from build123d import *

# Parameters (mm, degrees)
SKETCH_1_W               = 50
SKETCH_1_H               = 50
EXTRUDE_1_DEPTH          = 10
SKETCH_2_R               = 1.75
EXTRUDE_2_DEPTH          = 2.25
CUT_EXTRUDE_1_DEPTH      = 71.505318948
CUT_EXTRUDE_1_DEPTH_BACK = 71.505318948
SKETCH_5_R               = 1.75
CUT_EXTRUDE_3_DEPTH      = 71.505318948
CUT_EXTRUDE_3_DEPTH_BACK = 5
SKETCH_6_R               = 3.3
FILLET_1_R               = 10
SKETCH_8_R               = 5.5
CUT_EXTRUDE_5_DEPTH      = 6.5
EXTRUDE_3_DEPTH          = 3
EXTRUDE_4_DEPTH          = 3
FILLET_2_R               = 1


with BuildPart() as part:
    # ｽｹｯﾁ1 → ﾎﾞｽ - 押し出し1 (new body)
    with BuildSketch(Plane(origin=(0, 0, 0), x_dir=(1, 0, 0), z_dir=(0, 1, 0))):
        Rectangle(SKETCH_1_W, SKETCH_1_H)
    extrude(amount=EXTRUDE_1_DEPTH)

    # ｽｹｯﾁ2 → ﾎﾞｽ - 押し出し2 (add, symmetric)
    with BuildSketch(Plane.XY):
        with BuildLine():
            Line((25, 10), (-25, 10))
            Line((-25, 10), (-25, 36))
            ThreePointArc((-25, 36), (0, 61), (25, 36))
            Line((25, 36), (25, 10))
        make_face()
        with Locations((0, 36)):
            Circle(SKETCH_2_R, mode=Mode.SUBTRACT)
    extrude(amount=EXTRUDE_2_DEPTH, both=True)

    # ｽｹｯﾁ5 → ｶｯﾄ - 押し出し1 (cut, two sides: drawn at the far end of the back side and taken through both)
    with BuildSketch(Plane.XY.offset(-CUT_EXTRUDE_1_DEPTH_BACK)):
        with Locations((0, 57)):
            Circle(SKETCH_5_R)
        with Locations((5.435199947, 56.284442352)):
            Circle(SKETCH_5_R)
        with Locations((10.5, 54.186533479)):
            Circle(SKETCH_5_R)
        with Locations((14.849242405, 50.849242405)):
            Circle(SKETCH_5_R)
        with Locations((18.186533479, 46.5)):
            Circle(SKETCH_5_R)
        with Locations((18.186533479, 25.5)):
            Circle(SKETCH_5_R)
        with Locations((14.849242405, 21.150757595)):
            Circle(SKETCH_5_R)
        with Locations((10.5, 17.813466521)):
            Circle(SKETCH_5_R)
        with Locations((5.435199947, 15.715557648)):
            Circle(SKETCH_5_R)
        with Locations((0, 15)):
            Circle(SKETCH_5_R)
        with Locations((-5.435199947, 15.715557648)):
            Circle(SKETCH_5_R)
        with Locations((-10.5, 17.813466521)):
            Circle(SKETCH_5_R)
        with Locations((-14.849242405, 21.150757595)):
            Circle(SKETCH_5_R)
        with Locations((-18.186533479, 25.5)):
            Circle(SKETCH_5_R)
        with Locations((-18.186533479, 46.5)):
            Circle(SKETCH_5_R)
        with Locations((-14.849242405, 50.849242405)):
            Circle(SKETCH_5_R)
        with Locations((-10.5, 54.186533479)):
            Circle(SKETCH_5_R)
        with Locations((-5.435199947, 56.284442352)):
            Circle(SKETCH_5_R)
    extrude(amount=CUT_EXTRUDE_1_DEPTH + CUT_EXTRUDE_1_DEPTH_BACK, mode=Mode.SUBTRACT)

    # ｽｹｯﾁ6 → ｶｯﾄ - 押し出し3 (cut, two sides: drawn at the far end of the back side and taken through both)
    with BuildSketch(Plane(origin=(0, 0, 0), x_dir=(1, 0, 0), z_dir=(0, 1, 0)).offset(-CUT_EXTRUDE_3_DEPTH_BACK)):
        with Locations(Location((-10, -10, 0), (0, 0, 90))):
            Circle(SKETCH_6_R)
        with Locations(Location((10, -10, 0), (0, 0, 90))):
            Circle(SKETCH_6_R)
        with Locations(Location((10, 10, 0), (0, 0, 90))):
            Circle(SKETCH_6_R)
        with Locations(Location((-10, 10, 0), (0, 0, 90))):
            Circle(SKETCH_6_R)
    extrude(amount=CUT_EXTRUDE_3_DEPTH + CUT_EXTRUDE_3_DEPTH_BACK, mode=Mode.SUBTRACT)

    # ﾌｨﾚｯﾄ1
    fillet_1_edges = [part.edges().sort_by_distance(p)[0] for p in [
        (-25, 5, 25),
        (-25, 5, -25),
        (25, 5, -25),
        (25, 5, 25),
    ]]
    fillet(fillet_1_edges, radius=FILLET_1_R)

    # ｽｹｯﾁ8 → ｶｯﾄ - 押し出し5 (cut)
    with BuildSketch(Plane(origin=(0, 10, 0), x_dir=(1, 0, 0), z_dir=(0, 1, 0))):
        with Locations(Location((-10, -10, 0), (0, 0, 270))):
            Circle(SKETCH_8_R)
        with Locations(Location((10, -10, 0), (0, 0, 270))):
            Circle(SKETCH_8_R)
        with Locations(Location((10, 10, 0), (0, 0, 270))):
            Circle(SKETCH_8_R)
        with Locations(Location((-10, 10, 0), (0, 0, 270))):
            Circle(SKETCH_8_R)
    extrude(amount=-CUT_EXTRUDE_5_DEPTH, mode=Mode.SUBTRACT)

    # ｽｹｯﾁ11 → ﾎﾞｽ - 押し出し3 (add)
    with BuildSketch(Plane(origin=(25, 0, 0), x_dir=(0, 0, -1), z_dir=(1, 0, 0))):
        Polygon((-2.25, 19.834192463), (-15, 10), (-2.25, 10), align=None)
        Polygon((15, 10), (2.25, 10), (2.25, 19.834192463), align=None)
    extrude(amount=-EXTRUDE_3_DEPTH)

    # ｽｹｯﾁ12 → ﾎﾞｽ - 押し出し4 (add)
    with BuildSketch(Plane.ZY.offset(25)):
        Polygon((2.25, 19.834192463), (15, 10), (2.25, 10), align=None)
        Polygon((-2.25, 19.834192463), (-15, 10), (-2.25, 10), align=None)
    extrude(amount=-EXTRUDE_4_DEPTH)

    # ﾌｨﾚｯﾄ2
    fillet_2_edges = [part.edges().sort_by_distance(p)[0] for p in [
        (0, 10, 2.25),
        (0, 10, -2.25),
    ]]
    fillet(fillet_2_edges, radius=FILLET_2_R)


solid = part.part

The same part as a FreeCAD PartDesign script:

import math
import FreeCAD as App
import Part
import Sketcher

V = App.Vector
Q = App.Units.Quantity


def edges_at(feature, points):
    """Names of the edges that pass closest to the given points."""
    edges = feature.Shape.Edges
    near = lambda p: min(range(len(edges)), key=lambda i: edges[i].distToShape(Part.Vertex(*p))[0])
    return sorted({f"Edge{near(p) + 1}" for p in points})

doc = App.newDocument("Part")
params = doc.addObject("Spreadsheet::Sheet", "Params")
for row, (alias, value) in enumerate([
    ("sketch1_width", "50 mm"),
    ("pad1_length", "10 mm"),
    ("sketch2_radius", "25 mm"),
    ("sketch2_diameter", "3.5 mm"),
    ("sketch2_height", "26 mm"),
    ("pad2_length", "4.5 mm"),
    ("sketch3_diameter", "3.5 mm"),
    ("sketch4_diameter", "6.6 mm"),
    ("fillet_radius", "10 mm"),
    ("sketch5_diameter", "11 mm"),
    ("pocket3_length", "6.5 mm"),
    ("sketch6_height", "12.75 mm"),
    ("pad3_length", "3 mm"),
    ("sketch7_height", "12.75 mm"),
    ("pad4_length", "3 mm"),
    ("fillet2_radius", "1 mm"),
], start=1):
    params.set(f"A{row}", alias)
    params.set(f"B{row}", "=" + value)
    params.setAlias(f"B{row}", alias)

body = doc.addObject("PartDesign::Body", "Body")

# Sketch on XZ plane
sketch1 = doc.addObject("Sketcher::SketchObject", "Sketch")
body.addObject(sketch1)
sketch1.AttachmentSupport = (doc.XZ_Plane, [""])
sketch1.MapMode = "FlatFace"
sketch1.addGeometry([
    Part.LineSegment(V(-25, -25, 0), V(-25, 25, 0)),
    Part.LineSegment(V(-25, 25, 0), V(25, 25, 0)),
    Part.LineSegment(V(25, 25, 0), V(25, -25, 0)),
    Part.LineSegment(V(25, -25, 0), V(-25, -25, 0)),
], False)
sketch1.addConstraint([
    Sketcher.Constraint("Coincident", 0, 2, 1, 1),
    Sketcher.Constraint("Coincident", 1, 2, 2, 1),
    Sketcher.Constraint("Coincident", 2, 2, 3, 1),
    Sketcher.Constraint("Coincident", 3, 2, 0, 1),
    Sketcher.Constraint("Vertical", 0),
    Sketcher.Constraint("Horizontal", 1),
    Sketcher.Constraint("Vertical", 2),
    Sketcher.Constraint("Horizontal", 3),
    Sketcher.Constraint("Symmetric", 0, 2, 2, 2, -1, 1),
    Sketcher.Constraint("Equal", 3, 0),
    Sketcher.Constraint("DistanceX", 1, 1, 1, 2, Q("50 mm")),
])
sketch1.setExpression("Constraints[10]", "Params.sketch1_width")
pad1 = doc.addObject("PartDesign::Pad", "Pad")
body.addObject(pad1)
pad1.Profile = sketch1
pad1.setExpression("Length", "Params.pad1_length")
pad1.Reversed = True

# Sketch on XY plane
sketch2 = doc.addObject("Sketcher::SketchObject", "Sketch001")
body.addObject(sketch2)
sketch2.AttachmentSupport = (doc.XY_Plane, [""])
sketch2.MapMode = "FlatFace"
sketch2.addGeometry([
    Part.LineSegment(V(-25, 10, 0), V(25, 10, 0)),  # 0
    Part.LineSegment(V(25, 10, 0), V(25, 36, 0)),  # 1
    Part.ArcOfCircle(Part.Circle(V(0, 36, 0), V(0, 0, 1), 25), math.radians(0), math.radians(180)),  # 2
    Part.LineSegment(V(-25, 36, 0), V(-25, 10, 0)),  # 3
    Part.Circle(V(0, 36, 0), V(0, 0, 1), 1.75),  # 4
], False)
sketch2.addConstraint([
    Sketcher.Constraint("Coincident", 0, 2, 1, 1),
    Sketcher.Constraint("Tangent", 1, 2, 2, 1),
    Sketcher.Constraint("Tangent", 2, 2, 3, 1),
    Sketcher.Constraint("Coincident", 3, 2, 0, 1),
    Sketcher.Constraint("Horizontal", 0),
    Sketcher.Constraint("Vertical", 1),
    Sketcher.Constraint("Vertical", 3),
    Sketcher.Constraint("Coincident", 4, 3, 2, 3),
    Sketcher.Constraint("PointOnObject", 2, 3, -2),
    Sketcher.Constraint("Radius", 2, Q("25 mm")),
    Sketcher.Constraint("Diameter", 4, Q("3.5 mm")),
    Sketcher.Constraint("DistanceY", 1, 1, 1, 2, Q("26 mm")),
    Sketcher.Constraint("DistanceY", -1, 1, 2, 3, Q("36 mm")),
])
sketch2.setExpression("Constraints[9]", "Params.sketch2_radius")
sketch2.setExpression("Constraints[10]", "Params.sketch2_diameter")
sketch2.setExpression("Constraints[11]", "Params.sketch2_height")
pad2 = doc.addObject("PartDesign::Pad", "Pad001")
body.addObject(pad2)
pad2.Profile = sketch2
pad2.setExpression("Length", "Params.pad2_length")
pad2.Midplane = True

# Sketch on XY plane
sketch3 = doc.addObject("Sketcher::SketchObject", "Sketch002")
body.addObject(sketch3)
sketch3.AttachmentSupport = (doc.XY_Plane, [""])
sketch3.MapMode = "FlatFace"
sketch3.addGeometry([
    Part.Circle(V(0, 57, 0), V(0, 0, 1), 1.75),  # 0
    Part.Circle(V(5.4352, 56.284442, 0), V(0, 0, 1), 1.75),  # 1
    Part.Circle(V(10.5, 54.186533, 0), V(0, 0, 1), 1.75),  # 2
    Part.Circle(V(14.849242, 50.849242, 0), V(0, 0, 1), 1.75),  # 3
    Part.Circle(V(18.186533, 46.5, 0), V(0, 0, 1), 1.75),  # 4
    Part.Circle(V(18.186533, 25.5, 0), V(0, 0, 1), 1.75),  # 5
    Part.Circle(V(14.849242, 21.150758, 0), V(0, 0, 1), 1.75),  # 6
    Part.Circle(V(10.5, 17.813467, 0), V(0, 0, 1), 1.75),  # 7
    Part.Circle(V(5.4352, 15.715558, 0), V(0, 0, 1), 1.75),  # 8
    Part.Circle(V(0, 15, 0), V(0, 0, 1), 1.75),  # 9
    Part.Circle(V(-5.4352, 15.715558, 0), V(0, 0, 1), 1.75),  # 10
    Part.Circle(V(-10.5, 17.813467, 0), V(0, 0, 1), 1.75),  # 11
    Part.Circle(V(-14.849242, 21.150758, 0), V(0, 0, 1), 1.75),  # 12
    Part.Circle(V(-18.186533, 25.5, 0), V(0, 0, 1), 1.75),  # 13
    Part.Circle(V(-18.186533, 46.5, 0), V(0, 0, 1), 1.75),  # 14
    Part.Circle(V(-14.849242, 50.849242, 0), V(0, 0, 1), 1.75),  # 15
    Part.Circle(V(-10.5, 54.186533, 0), V(0, 0, 1), 1.75),  # 16
    Part.Circle(V(-5.4352, 56.284442, 0), V(0, 0, 1), 1.75),  # 17
], False)
sketch3.addConstraint([
    Sketcher.Constraint("Equal", 0, 1),
    Sketcher.Constraint("Equal", 1, 2),
    Sketcher.Constraint("Equal", 2, 3),
    Sketcher.Constraint("Equal", 3, 4),
    Sketcher.Constraint("Equal", 4, 5),
    Sketcher.Constraint("Equal", 5, 6),
    Sketcher.Constraint("Equal", 6, 7),
    Sketcher.Constraint("Equal", 7, 8),
    Sketcher.Constraint("Equal", 8, 9),
    Sketcher.Constraint("Equal", 9, 10),
    Sketcher.Constraint("Equal", 10, 11),
    Sketcher.Constraint("Equal", 11, 12),
    Sketcher.Constraint("Equal", 12, 13),
    Sketcher.Constraint("Equal", 13, 14),
    Sketcher.Constraint("Equal", 14, 15),
    Sketcher.Constraint("Equal", 15, 16),
    Sketcher.Constraint("Equal", 16, 17),
    Sketcher.Constraint("Symmetric", 8, 3, 10, 3, -2),
    Sketcher.Constraint("Symmetric", 7, 3, 11, 3, -2),
    Sketcher.Constraint("Symmetric", 6, 3, 12, 3, -2),
    Sketcher.Constraint("Symmetric", 5, 3, 13, 3, -2),
    Sketcher.Constraint("Symmetric", 4, 3, 14, 3, -2),
    Sketcher.Constraint("Symmetric", 3, 3, 15, 3, -2),
    Sketcher.Constraint("Symmetric", 2, 3, 16, 3, -2),
    Sketcher.Constraint("Symmetric", 1, 3, 17, 3, -2),
    Sketcher.Constraint("PointOnObject", 0, 3, -2),
    Sketcher.Constraint("PointOnObject", 9, 3, -2),
    Sketcher.Constraint("Vertical", 4, 3, 5, 3),
    Sketcher.Constraint("Vertical", 3, 3, 6, 3),
    Sketcher.Constraint("Vertical", 2, 3, 7, 3),
    Sketcher.Constraint("Vertical", 1, 3, 8, 3),
    Sketcher.Constraint("Diameter", 0, Q("3.5 mm")),
    Sketcher.Constraint("DistanceY", -1, 1, 0, 3, Q("57 mm")),
    Sketcher.Constraint("DistanceY", -1, 1, 9, 3, Q("15 mm")),
    Sketcher.Constraint("DistanceY", 5, 3, 4, 3, Q("21 mm")),
    Sketcher.Constraint("DistanceX", 11, 3, 7, 3, Q("21 mm")),
    Sketcher.Constraint("DistanceY", -1, 1, 4, 3, Q("46.5 mm")),
    Sketcher.Constraint("DistanceX", -1, 1, 1, 3, Q("5.4352 mm")),
    Sketcher.Constraint("DistanceY", 3, 3, 1, 3, Q("5.4352 mm")),
    Sketcher.Constraint("DistanceY", 8, 3, 6, 3, Q("5.4352 mm")),
    Sketcher.Constraint("DistanceY", 2, 3, 1, 3, Q("2.097909 mm")),
    Sketcher.Constraint("DistanceX", 3, 3, 4, 3, Q("3.337291 mm")),
    Sketcher.Constraint("DistanceY", 7, 3, 6, 3, Q("3.337291 mm")),
    Sketcher.Constraint("DistanceY", -1, 1, 1, 3, Q("56.284442 mm")),
    Sketcher.Constraint("DistanceX", -1, 1, 3, 3, Q("14.849242 mm")),
    Sketcher.Constraint("DistanceY", -1, 1, 6, 3, Q("21.150758 mm")),
])
sketch3.setExpression("Constraints[31]", "Params.sketch3_diameter")
pocket1 = doc.addObject("PartDesign::Pocket", "Pocket")
body.addObject(pocket1)
pocket1.Profile = sketch3
pocket1.Type = "ThroughAll"
pocket1.Midplane = True

# Sketch on XZ plane
sketch4 = doc.addObject("Sketcher::SketchObject", "Sketch003")
body.addObject(sketch4)
sketch4.AttachmentSupport = (doc.XZ_Plane, [""])
sketch4.MapMode = "FlatFace"
sketch4.addGeometry([
    Part.Circle(V(-10, 10, 0), V(0, 0, 1), 3.3),
    Part.Circle(V(10, 10, 0), V(0, 0, 1), 3.3),
    Part.Circle(V(10, -10, 0), V(0, 0, 1), 3.3),
    Part.Circle(V(-10, -10, 0), V(0, 0, 1), 3.3),
], False)
sketch4.addConstraint([
    Sketcher.Constraint("Equal", 0, 1),
    Sketcher.Constraint("Equal", 1, 2),
    Sketcher.Constraint("Equal", 2, 3),
    Sketcher.Constraint("Symmetric", 0, 3, 2, 3, -1, 1),
    Sketcher.Constraint("Symmetric", 1, 3, 3, 3, -1, 1),
    Sketcher.Constraint("Symmetric", 0, 3, 1, 3, -2),
    Sketcher.Constraint("Diameter", 0, Q("6.6 mm")),
    Sketcher.Constraint("DistanceX", 0, 3, -1, 1, Q("10 mm")),
    Sketcher.Constraint("DistanceY", -1, 1, 0, 3, Q("10 mm")),
])
sketch4.setExpression("Constraints[6]", "Params.sketch4_diameter")
pocket2 = doc.addObject("PartDesign::Pocket", "Pocket001")
body.addObject(pocket2)
pocket2.Profile = sketch4
pocket2.Type = "ThroughAll"
pocket2.Midplane = True
doc.recompute()

fillet = doc.addObject("PartDesign::Fillet", "Fillet")
body.addObject(fillet)
fillet.Base = (pocket2, edges_at(pocket2, [
    (-25, 5, 25),
    (-25, 5, -25),
    (25, 5, -25),
    (25, 5, 25),
]))
fillet.setExpression("Radius", "Params.fillet_radius")

# Sketch on XZ plane
sketch5 = doc.addObject("Sketcher::SketchObject", "Sketch004")
body.addObject(sketch5)
sketch5.AttachmentSupport = (doc.XZ_Plane, [""])
sketch5.MapMode = "FlatFace"
sketch5.AttachmentOffset = App.Placement(V(0, 0, -10), App.Rotation())
sketch5.addGeometry([
    Part.Circle(V(-10, 10, 0), V(0, 0, 1), 5.5),
    Part.Circle(V(10, 10, 0), V(0, 0, 1), 5.5),
    Part.Circle(V(10, -10, 0), V(0, 0, 1), 5.5),
    Part.Circle(V(-10, -10, 0), V(0, 0, 1), 5.5),
], False)
sketch5.addConstraint([
    Sketcher.Constraint("Equal", 0, 1),
    Sketcher.Constraint("Equal", 1, 2),
    Sketcher.Constraint("Equal", 2, 3),
    Sketcher.Constraint("Symmetric", 0, 3, 2, 3, -1, 1),
    Sketcher.Constraint("Symmetric", 1, 3, 3, 3, -1, 1),
    Sketcher.Constraint("Symmetric", 0, 3, 1, 3, -2),
    Sketcher.Constraint("Diameter", 0, Q("11 mm")),
    Sketcher.Constraint("DistanceX", 0, 3, -1, 1, Q("10 mm")),
    Sketcher.Constraint("DistanceY", -1, 1, 0, 3, Q("10 mm")),
])
sketch5.setExpression("Constraints[6]", "Params.sketch5_diameter")
pocket3 = doc.addObject("PartDesign::Pocket", "Pocket002")
body.addObject(pocket3)
pocket3.Profile = sketch5
pocket3.setExpression("Length", "Params.pocket3_length")
pocket3.Reversed = True

# Sketch on YZ plane
sketch6 = doc.addObject("Sketcher::SketchObject", "Sketch005")
body.addObject(sketch6)
sketch6.AttachmentSupport = (doc.YZ_Plane, [""])
sketch6.MapMode = "FlatFace"
sketch6.AttachmentOffset = App.Placement(V(0, 0, 25), App.Rotation())
sketch6.addGeometry([
    Part.LineSegment(V(19.834192, 2.25, 0), V(10, 15, 0)),  # 0
    Part.LineSegment(V(10, 15, 0), V(10, 2.25, 0)),  # 1
    Part.LineSegment(V(10, 2.25, 0), V(19.834192, 2.25, 0)),  # 2
    Part.LineSegment(V(10, -2.25, 0), V(10, -15, 0)),  # 3
    Part.LineSegment(V(10, -15, 0), V(19.834192, -2.25, 0)),  # 4
    Part.LineSegment(V(19.834192, -2.25, 0), V(10, -2.25, 0)),  # 5
], False)
sketch6.addConstraint([
    Sketcher.Constraint("Coincident", 0, 2, 1, 1),
    Sketcher.Constraint("Coincident", 1, 2, 2, 1),
    Sketcher.Constraint("Coincident", 2, 2, 0, 1),
    Sketcher.Constraint("Coincident", 3, 2, 4, 1),
    Sketcher.Constraint("Coincident", 4, 2, 5, 1),
    Sketcher.Constraint("Coincident", 5, 2, 3, 1),
    Sketcher.Constraint("Vertical", 1),
    Sketcher.Constraint("Horizontal", 2),
    Sketcher.Constraint("Vertical", 3),
    Sketcher.Constraint("Horizontal", 5),
    Sketcher.Constraint("Symmetric", 0, 2, 3, 2, -1),
    Sketcher.Constraint("Symmetric", 2, 2, 4, 2, -1),
    Sketcher.Constraint("DistanceX", -1, 1, 0, 2, Q("10 mm")),
    Sketcher.Constraint("DistanceY", -1, 1, 0, 2, Q("15 mm")),
    Sketcher.Constraint("DistanceY", 1, 2, 1, 1, Q("12.75 mm")),
    Sketcher.Constraint("DistanceX", 2, 1, 2, 2, Q("9.834192 mm")),
])
sketch6.setExpression("Constraints[14]", "Params.sketch6_height")
pad3 = doc.addObject("PartDesign::Pad", "Pad002")
body.addObject(pad3)
pad3.Profile = sketch6
pad3.setExpression("Length", "Params.pad3_length")
pad3.Reversed = True

# Sketch on YZ plane
sketch7 = doc.addObject("Sketcher::SketchObject", "Sketch006")
body.addObject(sketch7)
sketch7.AttachmentSupport = (doc.YZ_Plane, [""])
sketch7.MapMode = "FlatFace"
sketch7.AttachmentOffset = App.Placement(V(0, 0, -25), App.Rotation())
sketch7.addGeometry([
    Part.LineSegment(V(10, 15, 0), V(19.834192, 2.25, 0)),  # 0
    Part.LineSegment(V(19.834192, 2.25, 0), V(10, 2.25, 0)),  # 1
    Part.LineSegment(V(10, 2.25, 0), V(10, 15, 0)),  # 2
    Part.LineSegment(V(19.834192, -2.25, 0), V(10, -15, 0)),  # 3
    Part.LineSegment(V(10, -15, 0), V(10, -2.25, 0)),  # 4
    Part.LineSegment(V(10, -2.25, 0), V(19.834192, -2.25, 0)),  # 5
], False)
sketch7.addConstraint([
    Sketcher.Constraint("Coincident", 0, 2, 1, 1),
    Sketcher.Constraint("Coincident", 1, 2, 2, 1),
    Sketcher.Constraint("Coincident", 2, 2, 0, 1),
    Sketcher.Constraint("Coincident", 3, 2, 4, 1),
    Sketcher.Constraint("Coincident", 4, 2, 5, 1),
    Sketcher.Constraint("Coincident", 5, 2, 3, 1),
    Sketcher.Constraint("Horizontal", 1),
    Sketcher.Constraint("Vertical", 2),
    Sketcher.Constraint("Vertical", 4),
    Sketcher.Constraint("Horizontal", 5),
    Sketcher.Constraint("Symmetric", 2, 2, 3, 2, -1),
    Sketcher.Constraint("Symmetric", 0, 2, 5, 2, -1),
    Sketcher.Constraint("DistanceX", -1, 1, 1, 2, Q("10 mm")),
    Sketcher.Constraint("DistanceY", -1, 1, 2, 2, Q("15 mm")),
    Sketcher.Constraint("DistanceY", 2, 1, 2, 2, Q("12.75 mm")),
    Sketcher.Constraint("DistanceX", 1, 2, 1, 1, Q("9.834192 mm")),
])
sketch7.setExpression("Constraints[14]", "Params.sketch7_height")
pad4 = doc.addObject("PartDesign::Pad", "Pad003")
body.addObject(pad4)
pad4.Profile = sketch7
pad4.setExpression("Length", "Params.pad4_length")
doc.recompute()

fillet2 = doc.addObject("PartDesign::Fillet", "Fillet001")
body.addObject(fillet2)
fillet2.Base = (pad4, edges_at(pad4, [(0, 10, 2.25), (0, 10, -2.25)]))
fillet2.setExpression("Radius", "Params.fillet2_radius")

doc.recompute()
